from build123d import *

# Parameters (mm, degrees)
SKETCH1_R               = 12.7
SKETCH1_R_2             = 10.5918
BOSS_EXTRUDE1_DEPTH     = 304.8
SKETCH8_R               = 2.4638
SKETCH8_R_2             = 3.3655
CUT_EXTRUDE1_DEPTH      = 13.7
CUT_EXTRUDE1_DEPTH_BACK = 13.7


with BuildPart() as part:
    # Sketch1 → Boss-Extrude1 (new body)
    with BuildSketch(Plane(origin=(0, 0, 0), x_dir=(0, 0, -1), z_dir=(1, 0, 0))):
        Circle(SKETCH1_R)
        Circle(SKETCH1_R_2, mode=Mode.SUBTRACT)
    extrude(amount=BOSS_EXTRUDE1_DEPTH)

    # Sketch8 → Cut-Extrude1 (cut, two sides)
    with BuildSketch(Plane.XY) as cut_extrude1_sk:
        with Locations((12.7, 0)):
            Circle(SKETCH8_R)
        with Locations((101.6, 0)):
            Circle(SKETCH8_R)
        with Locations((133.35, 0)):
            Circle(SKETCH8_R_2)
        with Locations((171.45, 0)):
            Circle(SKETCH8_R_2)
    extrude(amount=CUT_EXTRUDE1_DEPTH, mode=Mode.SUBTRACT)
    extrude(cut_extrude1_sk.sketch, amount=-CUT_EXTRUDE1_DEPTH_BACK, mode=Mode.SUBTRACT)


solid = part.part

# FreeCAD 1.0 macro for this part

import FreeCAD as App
import Part
import Sketcher
Q = App.Units.Quantity

doc = App.newDocument("Part")
params = doc.addObject("Spreadsheet::Sheet", "Params")
for row, (alias, value) in enumerate([
    ("sketch1_diameter", "1 in"),
    ("sketch1_diameter2", "0.834 in"),
    ("pad1_length", "12 in"),
    ("sketch2_diameter", "0.194 in"),
    ("sketch2_diameter2", "0.265 in"),
], start=1):
    params.set(f"A{row}", alias)
    params.set(f"B{row}", "=" + value)
    params.setAlias(f"B{row}", alias)

body = doc.addObject("PartDesign::Body", "Body")

# Sketch on YZ plane
sketch1 = doc.addObject("Sketcher::SketchObject", "Sketch")
body.addObject(sketch1)
sketch1.AttachmentSupport = (doc.YZ_Plane, [""])
sketch1.MapMode = "FlatFace"
sketch1.addGeometry([
    Part.Circle(App.Vector(0, 0, 0), App.Vector(0, 0, 1), 13),
    Part.Circle(App.Vector(0, 0, 0), App.Vector(0, 0, 1), 11),
], False)
sketch1.addConstraint([
    Sketcher.Constraint("Coincident", 0, 3, -1, 1),
    Sketcher.Constraint("Coincident", 1, 3, -1, 1),
    Sketcher.Constraint("Diameter", 0, Q("1 in")),
    Sketcher.Constraint("Diameter", 1, Q("0.834 in")),
])
sketch1.setExpression("Constraints[2]", "Params.sketch1_diameter")
sketch1.setExpression("Constraints[3]", "Params.sketch1_diameter2")
pad1 = doc.addObject("PartDesign::Pad", "Pad")
body.addObject(pad1)
pad1.Profile = sketch1
pad1.setExpression("Length", "Params.pad1_length")

# Sketch on XY plane
sketch2 = doc.addObject("Sketcher::SketchObject", "Sketch001")
body.addObject(sketch2)
sketch2.AttachmentSupport = (doc.XY_Plane, [""])
sketch2.MapMode = "FlatFace"
sketch2.addGeometry([
    Part.Circle(App.Vector(12.7, 0, 0), App.Vector(0, 0, 1), 2.5),
    Part.Circle(App.Vector(101.6, 0, 0), App.Vector(0, 0, 1), 2.5),
    Part.Circle(App.Vector(133.3, 0, 0), App.Vector(0, 0, 1), 3.4),
    Part.Circle(App.Vector(171.4, 0, 0), App.Vector(0, 0, 1), 3.4),
], False)
sketch2.addConstraint([
    Sketcher.Constraint("Equal", 0, 1),
    Sketcher.Constraint("Equal", 2, 3),
    Sketcher.Constraint("PointOnObject", 0, 3, -1),
    Sketcher.Constraint("PointOnObject", 1, 3, -1),
    Sketcher.Constraint("PointOnObject", 2, 3, -1),
    Sketcher.Constraint("PointOnObject", 3, 3, -1),
    Sketcher.Constraint("Diameter", 0, Q("0.194 in")),
    Sketcher.Constraint("Diameter", 2, Q("0.265 in")),
    Sketcher.Constraint("DistanceX", -1, 1, 1, 3, Q("4 in")),
    Sketcher.Constraint("DistanceX", -1, 1, 0, 3, Q("0.5 in")),
    Sketcher.Constraint("DistanceX", 2, 3, 3, 3, Q("1.5 in")),
    Sketcher.Constraint("DistanceX", -1, 1, 2, 3, Q("5.25 in")),
])
sketch2.setExpression("Constraints[6]", "Params.sketch2_diameter")
sketch2.setExpression("Constraints[7]", "Params.sketch2_diameter2")
pocket1 = doc.addObject("PartDesign::Pocket", "Pocket")
body.addObject(pocket1)
pocket1.Profile = sketch2
pocket1.Type = "ThroughAll"
pocket1.Midplane = True

doc.recompute()
